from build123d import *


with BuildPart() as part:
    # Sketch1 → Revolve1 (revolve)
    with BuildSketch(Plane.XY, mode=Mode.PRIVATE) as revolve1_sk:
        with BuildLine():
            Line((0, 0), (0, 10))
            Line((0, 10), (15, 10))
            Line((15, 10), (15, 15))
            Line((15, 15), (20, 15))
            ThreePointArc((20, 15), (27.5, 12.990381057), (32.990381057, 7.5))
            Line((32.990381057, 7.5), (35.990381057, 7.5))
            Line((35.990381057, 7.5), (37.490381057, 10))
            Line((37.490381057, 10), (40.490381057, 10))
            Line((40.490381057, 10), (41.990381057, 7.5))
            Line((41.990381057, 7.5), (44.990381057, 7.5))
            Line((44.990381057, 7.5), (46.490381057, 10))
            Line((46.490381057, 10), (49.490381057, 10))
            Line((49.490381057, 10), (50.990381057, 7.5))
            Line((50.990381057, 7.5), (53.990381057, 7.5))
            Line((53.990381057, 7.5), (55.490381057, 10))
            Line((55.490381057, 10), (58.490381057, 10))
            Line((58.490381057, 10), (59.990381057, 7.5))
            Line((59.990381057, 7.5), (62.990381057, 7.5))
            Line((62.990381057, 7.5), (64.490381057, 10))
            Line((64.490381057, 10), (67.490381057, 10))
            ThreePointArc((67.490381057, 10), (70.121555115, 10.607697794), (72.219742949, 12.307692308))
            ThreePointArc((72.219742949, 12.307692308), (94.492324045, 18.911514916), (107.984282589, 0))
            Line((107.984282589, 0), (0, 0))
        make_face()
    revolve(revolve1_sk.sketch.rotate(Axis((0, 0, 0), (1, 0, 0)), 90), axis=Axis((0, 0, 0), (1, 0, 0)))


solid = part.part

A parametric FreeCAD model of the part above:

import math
import FreeCAD as App
import Part
import Sketcher
from FreeCAD import Vector
Q = App.Units.Quantity

doc = App.newDocument("Part")
body = doc.addObject("PartDesign::Body", "Body")

# Sketch on XY plane
sketch1 = doc.addObject("Sketcher::SketchObject", "Sketch")
body.addObject(sketch1)
sketch1.AttachmentSupport = (doc.XY_Plane, [""])
sketch1.MapMode = "FlatFace"
sketch1.addGeometry(Part.LineSegment(Vector(0, 10, 0), Vector(0, 0, 0)), False)
sketch1.addGeometry(Part.LineSegment(Vector(0, 0, 0), Vector(108, 0, 0)), False)
sketch1.addGeometry(Part.ArcOfCircle(Part.Circle(Vector(88, 0, 0), Vector(0, 0, 1), 20), math.radians(0), math.radians(142)), False)
sketch1.addGeometry(Part.ArcOfCircle(Part.Circle(Vector(67.5, 16, 0), Vector(0, 0, 1), 6), math.radians(-90), math.radians(-38)), False)
sketch1.addGeometry(Part.LineSegment(Vector(67.5, 10, 0), Vector(64.5, 10, 0)), False)
sketch1.addGeometry(Part.LineSegment(Vector(64.5, 10, 0), Vector(63, 7.5, 0)), False)
sketch1.addGeometry(Part.LineSegment(Vector(63, 7.5, 0), Vector(60, 7.5, 0)), False)
sketch1.addGeometry(Part.LineSegment(Vector(60, 7.5, 0), Vector(58.5, 10, 0)), False)
sketch1.addGeometry(Part.LineSegment(Vector(58.5, 10, 0), Vector(55.5, 10, 0)), False)
sketch1.addGeometry(Part.LineSegment(Vector(55.5, 10, 0), Vector(54, 7.5, 0)), False)
sketch1.addGeometry(Part.LineSegment(Vector(54, 7.5, 0), Vector(51, 7.5, 0)), False)
sketch1.addGeometry(Part.LineSegment(Vector(51, 7.5, 0), Vector(49.5, 10, 0)), False)
sketch1.addGeometry(Part.LineSegment(Vector(49.5, 10, 0), Vector(46.5, 10, 0)), False)
sketch1.addGeometry(Part.LineSegment(Vector(46.5, 10, 0), Vector(45, 7.5, 0)), False)
sketch1.addGeometry(Part.LineSegment(Vector(45, 7.5, 0), Vector(42, 7.5, 0)), False)
sketch1.addGeometry(Part.LineSegment(Vector(42, 7.5, 0), Vector(40.5, 10, 0)), False)
sketch1.addGeometry(Part.LineSegment(Vector(40.5, 10, 0), Vector(37.5, 10, 0)), False)
sketch1.addGeometry(Part.LineSegment(Vector(37.5, 10, 0), Vector(36, 7.5, 0)), False)
sketch1.addGeometry(Part.LineSegment(Vector(36, 7.5, 0), Vector(33, 7.5, 0)), False)
sketch1.addGeometry(Part.ArcOfCircle(Part.Circle(Vector(20, 0, 0), Vector(0, 0, 1), 15), math.radians(30), math.radians(90)), False)
sketch1.addGeometry(Part.LineSegment(Vector(20, 15, 0), Vector(15, 15, 0)), False)
sketch1.addGeometry(Part.LineSegment(Vector(15, 15, 0), Vector(15, 10, 0)), False)
sketch1.addGeometry(Part.LineSegment(Vector(15, 10, 0), Vector(0, 10, 0)), False)
sketch1.addConstraint(Sketcher.Constraint("Coincident", 0, 2, 1, 1))
sketch1.addConstraint(Sketcher.Constraint("Coincident", 1, 2, 2, 1))
sketch1.addConstraint(Sketcher.Constraint("Tangent", 2, 2, 3, 2))
sketch1.addConstraint(Sketcher.Constraint("Tangent", 3, 1, 4, 1))
sketch1.addConstraint(Sketcher.Constraint("Coincident", 4, 2, 5, 1))
sketch1.addConstraint(Sketcher.Constraint("Coincident", 5, 2, 6, 1))
sketch1.addConstraint(Sketcher.Constraint("Coincident", 6, 2, 7, 1))
sketch1.addConstraint(Sketcher.Constraint("Coincident", 7, 2, 8, 1))
sketch1.addConstraint(Sketcher.Constraint("Coincident", 8, 2, 9, 1))
sketch1.addConstraint(Sketcher.Constraint("Coincident", 9, 2, 10, 1))
sketch1.addConstraint(Sketcher.Constraint("Coincident", 10, 2, 11, 1))
sketch1.addConstraint(Sketcher.Constraint("Coincident", 11, 2, 12, 1))
sketch1.addConstraint(Sketcher.Constraint("Coincident", 12, 2, 13, 1))
sketch1.addConstraint(Sketcher.Constraint("Coincident", 13, 2, 14, 1))
sketch1.addConstraint(Sketcher.Constraint("Coincident", 14, 2, 15, 1))
sketch1.addConstraint(Sketcher.Constraint("Coincident", 15, 2, 16, 1))
sketch1.addConstraint(Sketcher.Constraint("Coincident", 16, 2, 17, 1))
sketch1.addConstraint(Sketcher.Constraint("Coincident", 17, 2, 18, 1))
sketch1.addConstraint(Sketcher.Constraint("Coincident", 18, 2, 19, 1))
sketch1.addConstraint(Sketcher.Constraint("Tangent", 19, 2, 20, 1))
sketch1.addConstraint(Sketcher.Constraint("Coincident", 20, 2, 21, 1))
sketch1.addConstraint(Sketcher.Constraint("Coincident", 21, 2, 22, 1))
sketch1.addConstraint(Sketcher.Constraint("Coincident", 22, 2, 0, 1))
sketch1.addConstraint(Sketcher.Constraint("Vertical", 0))
sketch1.addConstraint(Sketcher.Constraint("Horizontal", 1))
sketch1.addConstraint(Sketcher.Constraint("Horizontal", 4))
sketch1.addConstraint(Sketcher.Constraint("Horizontal", 6))
sketch1.addConstraint(Sketcher.Constraint("Horizontal", 8))
sketch1.addConstraint(Sketcher.Constraint("Horizontal", 10))
sketch1.addConstraint(Sketcher.Constraint("Horizontal", 12))
sketch1.addConstraint(Sketcher.Constraint("Horizontal", 14))
sketch1.addConstraint(Sketcher.Constraint("Horizontal", 16))
sketch1.addConstraint(Sketcher.Constraint("Horizontal", 18))
sketch1.addConstraint(Sketcher.Constraint("Horizontal", 20))
sketch1.addConstraint(Sketcher.Constraint("Vertical", 21))
sketch1.addConstraint(Sketcher.Constraint("Horizontal", 22))
sketch1.addConstraint(Sketcher.Constraint("Coincident", 0, 2, -1, 1))
sketch1.addConstraint(Sketcher.Constraint("PointOnObject", 2, 3, -1))
sketch1.addConstraint(Sketcher.Constraint("PointOnObject", 19, 3, -1))
sketch1.addConstraint(Sketcher.Constraint("Parallel", 5, 9))
sketch1.addConstraint(Sketcher.Constraint("Parallel", 7, 11))
sketch1.addConstraint(Sketcher.Constraint("Parallel", 9, 13))
sketch1.addConstraint(Sketcher.Constraint("Parallel", 11, 15))
sketch1.addConstraint(Sketcher.Constraint("Parallel", 13, 17))
sketch1.addConstraint(Sketcher.Constraint("Horizontal", 4, 2, 7, 2))
sketch1.addConstraint(Sketcher.Constraint("Horizontal", 6, 2, 9, 2))
sketch1.addConstraint(Sketcher.Constraint("Horizontal", 8, 2, 11, 2))
sketch1.addConstraint(Sketcher.Constraint("Horizontal", 10, 2, 13, 2))
sketch1.addConstraint(Sketcher.Constraint("Horizontal", 12, 2, 15, 2))
sketch1.addConstraint(Sketcher.Constraint("Horizontal", 14, 2, 17, 2))
sketch1.addConstraint(Sketcher.Constraint("Horizontal", 16, 2, 21, 2))
sketch1.addConstraint(Sketcher.Constraint("Equal", 4, 6))
sketch1.addConstraint(Sketcher.Constraint("Equal", 6, 8))
sketch1.addConstraint(Sketcher.Constraint("Equal", 8, 10))
sketch1.addConstraint(Sketcher.Constraint("Equal", 10, 12))
sketch1.addConstraint(Sketcher.Constraint("Equal", 12, 14))
sketch1.addConstraint(Sketcher.Constraint("Equal", 14, 16))
sketch1.addConstraint(Sketcher.Constraint("Equal", 16, 18))
sketch1.addConstraint(Sketcher.Constraint("Equal", 20, 21))
sketch1.addConstraint(Sketcher.Constraint("Equal", 5, 7))
sketch1.addConstraint(Sketcher.Constraint("Radius", 2, Q("20 mm")))
sketch1.addConstraint(Sketcher.Constraint("Radius", 3, Q("6 mm")))
sketch1.addConstraint(Sketcher.Constraint("Radius", 19, Q("15 mm")))
sketch1.addConstraint(Sketcher.Constraint("DistanceX", 4, 2, 4, 1, Q("3 mm")))
sketch1.addConstraint(Sketcher.Constraint("DistanceX", 20, 2, 20, 1, Q("5 mm")))
sketch1.addConstraint(Sketcher.Constraint("DistanceX", 22, 2, 22, 1, Q("15 mm")))
sketch1.addConstraint(Sketcher.Constraint("DistanceX", 7, 2, 4, 2, Q("6 mm")))
sketch1.addConstraint(Sketcher.Constraint("DistanceY", -1, 1, 5, 2, Q("7.5 mm")))
revolution = doc.addObject("PartDesign::Revolution", "Revolution")
body.addObject(revolution)
revolution.Profile = sketch1
revolution.ReferenceAxis = (sketch1, ["H_Axis"])
revolution.Angle = 360

doc.recompute()
